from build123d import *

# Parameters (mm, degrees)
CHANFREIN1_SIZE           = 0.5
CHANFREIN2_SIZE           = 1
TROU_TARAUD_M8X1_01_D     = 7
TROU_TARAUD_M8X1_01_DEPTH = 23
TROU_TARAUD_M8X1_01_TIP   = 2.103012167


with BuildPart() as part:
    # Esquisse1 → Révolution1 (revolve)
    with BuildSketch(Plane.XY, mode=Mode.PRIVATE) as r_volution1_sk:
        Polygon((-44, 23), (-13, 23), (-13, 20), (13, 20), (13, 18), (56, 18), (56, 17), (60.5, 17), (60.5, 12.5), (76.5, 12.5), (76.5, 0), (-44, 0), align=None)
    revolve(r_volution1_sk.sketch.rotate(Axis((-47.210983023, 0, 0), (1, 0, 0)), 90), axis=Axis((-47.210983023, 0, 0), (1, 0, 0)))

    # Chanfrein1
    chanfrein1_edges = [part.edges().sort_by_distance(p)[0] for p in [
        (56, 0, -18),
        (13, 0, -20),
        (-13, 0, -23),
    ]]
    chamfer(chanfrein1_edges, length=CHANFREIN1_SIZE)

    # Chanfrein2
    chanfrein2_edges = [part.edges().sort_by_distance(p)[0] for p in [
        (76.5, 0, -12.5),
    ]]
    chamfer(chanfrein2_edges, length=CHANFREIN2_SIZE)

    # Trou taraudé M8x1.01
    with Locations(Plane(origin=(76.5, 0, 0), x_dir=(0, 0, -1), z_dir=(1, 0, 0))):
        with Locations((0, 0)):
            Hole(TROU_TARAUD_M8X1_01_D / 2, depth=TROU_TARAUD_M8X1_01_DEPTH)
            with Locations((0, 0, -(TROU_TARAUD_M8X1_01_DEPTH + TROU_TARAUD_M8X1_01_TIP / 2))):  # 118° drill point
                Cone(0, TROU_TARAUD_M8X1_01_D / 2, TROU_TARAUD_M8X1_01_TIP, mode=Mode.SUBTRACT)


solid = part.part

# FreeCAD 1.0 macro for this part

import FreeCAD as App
import Part
import Sketcher
from FreeCAD import Vector


def edges_at(feature, points):
    """Names of the edges that pass closest to the given points."""
    edges = feature.Shape.Edges
    near = lambda p: min(range(len(edges)), key=lambda i: edges[i].distToShape(Part.Vertex(*p))[0])
    return sorted({f"Edge{near(p) + 1}" for p in points})

doc = App.newDocument("Part")
params = doc.addObject("Spreadsheet::Sheet", "Params")
for row, (alias, value) in enumerate([
    ("sketch1_width", "31 mm"),
    ("sketch1_width2", "16 mm"),
    ("sketch1_width3", "43 mm"),
    ("sketch1_width4", "26 mm"),
    ("sketch1_height", "23 mm"),
    ("revolution_angle", "360 deg"),
    ("chamfer_size", "0.5 mm"),
    ("chamfer2_size", "1 mm"),
    ("sketch2_diameter", "7 mm"),
    ("hole_diameter", "7 mm"),
    ("hole_depth", "23 mm"),
], start=1):
    params.set(f"A{row}", alias)
    params.set(f"B{row}", "=" + value)
    params.setAlias(f"B{row}", alias)

body = doc.addObject("PartDesign::Body", "Body")

# Sketch on XY plane
sketch1 = body.newObject("Sketcher::SketchObject", "Sketch")
sketch1.AttachmentSupport = (doc.getObject("XY_Plane"), [""])
sketch1.MapMode = "FlatFace"
sketch1.addGeometry(Part.LineSegment(Vector(-13, 23, 0), Vector(-44, 23, 0)), False)
sketch1.addGeometry(Part.LineSegment(Vector(-44, 23, 0), Vector(-44, 0, 0)), False)
sketch1.addGeometry(Part.LineSegment(Vector(-44, 0, 0), Vector(76.5, 0, 0)), False)
sketch1.addGeometry(Part.LineSegment(Vector(76.5, 0, 0), Vector(76.5, 12.5, 0)), False)
sketch1.addGeometry(Part.LineSegment(Vector(76.5, 12.5, 0), Vector(60.5, 12.5, 0)), False)
sketch1.addGeometry(Part.LineSegment(Vector(60.5, 12.5, 0), Vector(60.5, 17, 0)), False)
sketch1.addGeometry(Part.LineSegment(Vector(60.5, 17, 0), Vector(56, 17, 0)), False)
sketch1.addGeometry(Part.LineSegment(Vector(56, 17, 0), Vector(56, 18, 0)), False)
sketch1.addGeometry(Part.LineSegment(Vector(56, 18, 0), Vector(13, 18, 0)), False)
sketch1.addGeometry(Part.LineSegment(Vector(13, 18, 0), Vector(13, 20, 0)), False)
sketch1.addGeometry(Part.LineSegment(Vector(13, 20, 0), Vector(-13, 20, 0)), False)
sketch1.addGeometry(Part.LineSegment(Vector(-13, 20, 0), Vector(-13, 23, 0)), False)
sketch1.addConstraint(Sketcher.Constraint("Coincident", 0, 2, 1, 1))
sketch1.addConstraint(Sketcher.Constraint("Coincident", 1, 2, 2, 1))
sketch1.addConstraint(Sketcher.Constraint("Coincident", 2, 2, 3, 1))
sketch1.addConstraint(Sketcher.Constraint("Coincident", 3, 2, 4, 1))
sketch1.addConstraint(Sketcher.Constraint("Coincident", 4, 2, 5, 1))
sketch1.addConstraint(Sketcher.Constraint("Coincident", 5, 2, 6, 1))
sketch1.addConstraint(Sketcher.Constraint("Coincident", 6, 2, 7, 1))
sketch1.addConstraint(Sketcher.Constraint("Coincident", 7, 2, 8, 1))
sketch1.addConstraint(Sketcher.Constraint("Coincident", 8, 2, 9, 1))
sketch1.addConstraint(Sketcher.Constraint("Coincident", 9, 2, 10, 1))
sketch1.addConstraint(Sketcher.Constraint("Coincident", 10, 2, 11, 1))
sketch1.addConstraint(Sketcher.Constraint("Coincident", 11, 2, 0, 1))
sketch1.addConstraint(Sketcher.Constraint("Horizontal", 0))
sketch1.addConstraint(Sketcher.Constraint("Vertical", 1))
sketch1.addConstraint(Sketcher.Constraint("Horizontal", 2))
sketch1.addConstraint(Sketcher.Constraint("Vertical", 3))
sketch1.addConstraint(Sketcher.Constraint("Horizontal", 4))
sketch1.addConstraint(Sketcher.Constraint("Vertical", 5))
sketch1.addConstraint(Sketcher.Constraint("Horizontal", 6))
sketch1.addConstraint(Sketcher.Constraint("Vertical", 7))
sketch1.addConstraint(Sketcher.Constraint("Horizontal", 8))
sketch1.addConstraint(Sketcher.Constraint("Vertical", 9))
sketch1.addConstraint(Sketcher.Constraint("Horizontal", 10))
sketch1.addConstraint(Sketcher.Constraint("Vertical", 11))
sketch1.addConstraint(Sketcher.Constraint("PointOnObject", 1, 2, -1))
sketch1.addConstraint(Sketcher.Constraint("Equal", 6, 5))
sketch1.addConstraint(Sketcher.Constraint("DistanceX", 0, 2, 0, 1, 31.0))
sketch1.addConstraint(Sketcher.Constraint("DistanceX", 4, 2, 4, 1, 16.0))
sketch1.addConstraint(Sketcher.Constraint("DistanceX", 8, 2, 8, 1, 43.0))
sketch1.addConstraint(Sketcher.Constraint("DistanceX", 10, 2, 10, 1, 26.0))
sketch1.addConstraint(Sketcher.Constraint("DistanceY", 1, 2, 1, 1, 23.0))
sketch1.addConstraint(Sketcher.Constraint("DistanceY", 7, 1, 7, 2, 1.0))
sketch1.addConstraint(Sketcher.Constraint("DistanceY", 9, 1, 9, 2, 2.0))
sketch1.addConstraint(Sketcher.Constraint("DistanceY", 11, 1, 11, 2, 3.0))
sketch1.addConstraint(Sketcher.Constraint("DistanceX", 2, 1, 2, 2, 120.5))
sketch1.addConstraint(Sketcher.Constraint("DistanceX", 0, 2, -1, 1, 44.0))
sketch1.setExpression("Constraints[26]", "Params.sketch1_width")
sketch1.setExpression("Constraints[27]", "Params.sketch1_width2")
sketch1.setExpression("Constraints[28]", "Params.sketch1_width3")
sketch1.setExpression("Constraints[29]", "Params.sketch1_width4")
sketch1.setExpression("Constraints[30]", "Params.sketch1_height")
revolution = body.newObject("PartDesign::Revolution", "Revolution")
revolution.Profile = sketch1
revolution.ReferenceAxis = (sketch1, ["H_Axis"])
revolution.setExpression("Angle", "Params.revolution_angle")
doc.recompute()

chamfer = body.newObject("PartDesign::Chamfer", "Chamfer")
chamfer.Base = (revolution, edges_at(revolution, [(56, 0, -18), (13, 0, -20), (-13, 0, -23)]))
chamfer.setExpression("Size", "Params.chamfer_size")
doc.recompute()

chamfer2 = body.newObject("PartDesign::Chamfer", "Chamfer001")
chamfer2.Base = (chamfer, edges_at(chamfer, [(76.5, 0, -12.5)]))
chamfer2.setExpression("Size", "Params.chamfer2_size")

# Sketch on YZ plane
sketch2 = body.newObject("Sketcher::SketchObject", "Sketch001")
sketch2.AttachmentSupport = (doc.getObject("YZ_Plane"), [""])
sketch2.MapMode = "FlatFace"
sketch2.AttachmentOffset = App.Placement(Vector(0, 0, 76.5), App.Rotation())
sketch2.addGeometry(Part.Circle(Vector(0, 0, 0), Vector(0, 0, 1), 3.5), False)
sketch2.addConstraint(Sketcher.Constraint("Coincident", 0, 3, -1, 1))
sketch2.addConstraint(Sketcher.Constraint("Diameter", 0, 7.0))
sketch2.setExpression("Constraints[1]", "Params.sketch2_diameter")
doc.recompute()
hole = body.newObject("PartDesign::Hole", "Hole")
hole.Profile = sketch2
hole.ThreadType = "None"
hole.setExpression("Diameter", "Params.hole_diameter")
hole.DepthType = "Dimension"
hole.setExpression("Depth", "Params.hole_depth")
hole.DrillPoint = "Angled"
hole.DrillPointAngle = 118

doc.recompute()
